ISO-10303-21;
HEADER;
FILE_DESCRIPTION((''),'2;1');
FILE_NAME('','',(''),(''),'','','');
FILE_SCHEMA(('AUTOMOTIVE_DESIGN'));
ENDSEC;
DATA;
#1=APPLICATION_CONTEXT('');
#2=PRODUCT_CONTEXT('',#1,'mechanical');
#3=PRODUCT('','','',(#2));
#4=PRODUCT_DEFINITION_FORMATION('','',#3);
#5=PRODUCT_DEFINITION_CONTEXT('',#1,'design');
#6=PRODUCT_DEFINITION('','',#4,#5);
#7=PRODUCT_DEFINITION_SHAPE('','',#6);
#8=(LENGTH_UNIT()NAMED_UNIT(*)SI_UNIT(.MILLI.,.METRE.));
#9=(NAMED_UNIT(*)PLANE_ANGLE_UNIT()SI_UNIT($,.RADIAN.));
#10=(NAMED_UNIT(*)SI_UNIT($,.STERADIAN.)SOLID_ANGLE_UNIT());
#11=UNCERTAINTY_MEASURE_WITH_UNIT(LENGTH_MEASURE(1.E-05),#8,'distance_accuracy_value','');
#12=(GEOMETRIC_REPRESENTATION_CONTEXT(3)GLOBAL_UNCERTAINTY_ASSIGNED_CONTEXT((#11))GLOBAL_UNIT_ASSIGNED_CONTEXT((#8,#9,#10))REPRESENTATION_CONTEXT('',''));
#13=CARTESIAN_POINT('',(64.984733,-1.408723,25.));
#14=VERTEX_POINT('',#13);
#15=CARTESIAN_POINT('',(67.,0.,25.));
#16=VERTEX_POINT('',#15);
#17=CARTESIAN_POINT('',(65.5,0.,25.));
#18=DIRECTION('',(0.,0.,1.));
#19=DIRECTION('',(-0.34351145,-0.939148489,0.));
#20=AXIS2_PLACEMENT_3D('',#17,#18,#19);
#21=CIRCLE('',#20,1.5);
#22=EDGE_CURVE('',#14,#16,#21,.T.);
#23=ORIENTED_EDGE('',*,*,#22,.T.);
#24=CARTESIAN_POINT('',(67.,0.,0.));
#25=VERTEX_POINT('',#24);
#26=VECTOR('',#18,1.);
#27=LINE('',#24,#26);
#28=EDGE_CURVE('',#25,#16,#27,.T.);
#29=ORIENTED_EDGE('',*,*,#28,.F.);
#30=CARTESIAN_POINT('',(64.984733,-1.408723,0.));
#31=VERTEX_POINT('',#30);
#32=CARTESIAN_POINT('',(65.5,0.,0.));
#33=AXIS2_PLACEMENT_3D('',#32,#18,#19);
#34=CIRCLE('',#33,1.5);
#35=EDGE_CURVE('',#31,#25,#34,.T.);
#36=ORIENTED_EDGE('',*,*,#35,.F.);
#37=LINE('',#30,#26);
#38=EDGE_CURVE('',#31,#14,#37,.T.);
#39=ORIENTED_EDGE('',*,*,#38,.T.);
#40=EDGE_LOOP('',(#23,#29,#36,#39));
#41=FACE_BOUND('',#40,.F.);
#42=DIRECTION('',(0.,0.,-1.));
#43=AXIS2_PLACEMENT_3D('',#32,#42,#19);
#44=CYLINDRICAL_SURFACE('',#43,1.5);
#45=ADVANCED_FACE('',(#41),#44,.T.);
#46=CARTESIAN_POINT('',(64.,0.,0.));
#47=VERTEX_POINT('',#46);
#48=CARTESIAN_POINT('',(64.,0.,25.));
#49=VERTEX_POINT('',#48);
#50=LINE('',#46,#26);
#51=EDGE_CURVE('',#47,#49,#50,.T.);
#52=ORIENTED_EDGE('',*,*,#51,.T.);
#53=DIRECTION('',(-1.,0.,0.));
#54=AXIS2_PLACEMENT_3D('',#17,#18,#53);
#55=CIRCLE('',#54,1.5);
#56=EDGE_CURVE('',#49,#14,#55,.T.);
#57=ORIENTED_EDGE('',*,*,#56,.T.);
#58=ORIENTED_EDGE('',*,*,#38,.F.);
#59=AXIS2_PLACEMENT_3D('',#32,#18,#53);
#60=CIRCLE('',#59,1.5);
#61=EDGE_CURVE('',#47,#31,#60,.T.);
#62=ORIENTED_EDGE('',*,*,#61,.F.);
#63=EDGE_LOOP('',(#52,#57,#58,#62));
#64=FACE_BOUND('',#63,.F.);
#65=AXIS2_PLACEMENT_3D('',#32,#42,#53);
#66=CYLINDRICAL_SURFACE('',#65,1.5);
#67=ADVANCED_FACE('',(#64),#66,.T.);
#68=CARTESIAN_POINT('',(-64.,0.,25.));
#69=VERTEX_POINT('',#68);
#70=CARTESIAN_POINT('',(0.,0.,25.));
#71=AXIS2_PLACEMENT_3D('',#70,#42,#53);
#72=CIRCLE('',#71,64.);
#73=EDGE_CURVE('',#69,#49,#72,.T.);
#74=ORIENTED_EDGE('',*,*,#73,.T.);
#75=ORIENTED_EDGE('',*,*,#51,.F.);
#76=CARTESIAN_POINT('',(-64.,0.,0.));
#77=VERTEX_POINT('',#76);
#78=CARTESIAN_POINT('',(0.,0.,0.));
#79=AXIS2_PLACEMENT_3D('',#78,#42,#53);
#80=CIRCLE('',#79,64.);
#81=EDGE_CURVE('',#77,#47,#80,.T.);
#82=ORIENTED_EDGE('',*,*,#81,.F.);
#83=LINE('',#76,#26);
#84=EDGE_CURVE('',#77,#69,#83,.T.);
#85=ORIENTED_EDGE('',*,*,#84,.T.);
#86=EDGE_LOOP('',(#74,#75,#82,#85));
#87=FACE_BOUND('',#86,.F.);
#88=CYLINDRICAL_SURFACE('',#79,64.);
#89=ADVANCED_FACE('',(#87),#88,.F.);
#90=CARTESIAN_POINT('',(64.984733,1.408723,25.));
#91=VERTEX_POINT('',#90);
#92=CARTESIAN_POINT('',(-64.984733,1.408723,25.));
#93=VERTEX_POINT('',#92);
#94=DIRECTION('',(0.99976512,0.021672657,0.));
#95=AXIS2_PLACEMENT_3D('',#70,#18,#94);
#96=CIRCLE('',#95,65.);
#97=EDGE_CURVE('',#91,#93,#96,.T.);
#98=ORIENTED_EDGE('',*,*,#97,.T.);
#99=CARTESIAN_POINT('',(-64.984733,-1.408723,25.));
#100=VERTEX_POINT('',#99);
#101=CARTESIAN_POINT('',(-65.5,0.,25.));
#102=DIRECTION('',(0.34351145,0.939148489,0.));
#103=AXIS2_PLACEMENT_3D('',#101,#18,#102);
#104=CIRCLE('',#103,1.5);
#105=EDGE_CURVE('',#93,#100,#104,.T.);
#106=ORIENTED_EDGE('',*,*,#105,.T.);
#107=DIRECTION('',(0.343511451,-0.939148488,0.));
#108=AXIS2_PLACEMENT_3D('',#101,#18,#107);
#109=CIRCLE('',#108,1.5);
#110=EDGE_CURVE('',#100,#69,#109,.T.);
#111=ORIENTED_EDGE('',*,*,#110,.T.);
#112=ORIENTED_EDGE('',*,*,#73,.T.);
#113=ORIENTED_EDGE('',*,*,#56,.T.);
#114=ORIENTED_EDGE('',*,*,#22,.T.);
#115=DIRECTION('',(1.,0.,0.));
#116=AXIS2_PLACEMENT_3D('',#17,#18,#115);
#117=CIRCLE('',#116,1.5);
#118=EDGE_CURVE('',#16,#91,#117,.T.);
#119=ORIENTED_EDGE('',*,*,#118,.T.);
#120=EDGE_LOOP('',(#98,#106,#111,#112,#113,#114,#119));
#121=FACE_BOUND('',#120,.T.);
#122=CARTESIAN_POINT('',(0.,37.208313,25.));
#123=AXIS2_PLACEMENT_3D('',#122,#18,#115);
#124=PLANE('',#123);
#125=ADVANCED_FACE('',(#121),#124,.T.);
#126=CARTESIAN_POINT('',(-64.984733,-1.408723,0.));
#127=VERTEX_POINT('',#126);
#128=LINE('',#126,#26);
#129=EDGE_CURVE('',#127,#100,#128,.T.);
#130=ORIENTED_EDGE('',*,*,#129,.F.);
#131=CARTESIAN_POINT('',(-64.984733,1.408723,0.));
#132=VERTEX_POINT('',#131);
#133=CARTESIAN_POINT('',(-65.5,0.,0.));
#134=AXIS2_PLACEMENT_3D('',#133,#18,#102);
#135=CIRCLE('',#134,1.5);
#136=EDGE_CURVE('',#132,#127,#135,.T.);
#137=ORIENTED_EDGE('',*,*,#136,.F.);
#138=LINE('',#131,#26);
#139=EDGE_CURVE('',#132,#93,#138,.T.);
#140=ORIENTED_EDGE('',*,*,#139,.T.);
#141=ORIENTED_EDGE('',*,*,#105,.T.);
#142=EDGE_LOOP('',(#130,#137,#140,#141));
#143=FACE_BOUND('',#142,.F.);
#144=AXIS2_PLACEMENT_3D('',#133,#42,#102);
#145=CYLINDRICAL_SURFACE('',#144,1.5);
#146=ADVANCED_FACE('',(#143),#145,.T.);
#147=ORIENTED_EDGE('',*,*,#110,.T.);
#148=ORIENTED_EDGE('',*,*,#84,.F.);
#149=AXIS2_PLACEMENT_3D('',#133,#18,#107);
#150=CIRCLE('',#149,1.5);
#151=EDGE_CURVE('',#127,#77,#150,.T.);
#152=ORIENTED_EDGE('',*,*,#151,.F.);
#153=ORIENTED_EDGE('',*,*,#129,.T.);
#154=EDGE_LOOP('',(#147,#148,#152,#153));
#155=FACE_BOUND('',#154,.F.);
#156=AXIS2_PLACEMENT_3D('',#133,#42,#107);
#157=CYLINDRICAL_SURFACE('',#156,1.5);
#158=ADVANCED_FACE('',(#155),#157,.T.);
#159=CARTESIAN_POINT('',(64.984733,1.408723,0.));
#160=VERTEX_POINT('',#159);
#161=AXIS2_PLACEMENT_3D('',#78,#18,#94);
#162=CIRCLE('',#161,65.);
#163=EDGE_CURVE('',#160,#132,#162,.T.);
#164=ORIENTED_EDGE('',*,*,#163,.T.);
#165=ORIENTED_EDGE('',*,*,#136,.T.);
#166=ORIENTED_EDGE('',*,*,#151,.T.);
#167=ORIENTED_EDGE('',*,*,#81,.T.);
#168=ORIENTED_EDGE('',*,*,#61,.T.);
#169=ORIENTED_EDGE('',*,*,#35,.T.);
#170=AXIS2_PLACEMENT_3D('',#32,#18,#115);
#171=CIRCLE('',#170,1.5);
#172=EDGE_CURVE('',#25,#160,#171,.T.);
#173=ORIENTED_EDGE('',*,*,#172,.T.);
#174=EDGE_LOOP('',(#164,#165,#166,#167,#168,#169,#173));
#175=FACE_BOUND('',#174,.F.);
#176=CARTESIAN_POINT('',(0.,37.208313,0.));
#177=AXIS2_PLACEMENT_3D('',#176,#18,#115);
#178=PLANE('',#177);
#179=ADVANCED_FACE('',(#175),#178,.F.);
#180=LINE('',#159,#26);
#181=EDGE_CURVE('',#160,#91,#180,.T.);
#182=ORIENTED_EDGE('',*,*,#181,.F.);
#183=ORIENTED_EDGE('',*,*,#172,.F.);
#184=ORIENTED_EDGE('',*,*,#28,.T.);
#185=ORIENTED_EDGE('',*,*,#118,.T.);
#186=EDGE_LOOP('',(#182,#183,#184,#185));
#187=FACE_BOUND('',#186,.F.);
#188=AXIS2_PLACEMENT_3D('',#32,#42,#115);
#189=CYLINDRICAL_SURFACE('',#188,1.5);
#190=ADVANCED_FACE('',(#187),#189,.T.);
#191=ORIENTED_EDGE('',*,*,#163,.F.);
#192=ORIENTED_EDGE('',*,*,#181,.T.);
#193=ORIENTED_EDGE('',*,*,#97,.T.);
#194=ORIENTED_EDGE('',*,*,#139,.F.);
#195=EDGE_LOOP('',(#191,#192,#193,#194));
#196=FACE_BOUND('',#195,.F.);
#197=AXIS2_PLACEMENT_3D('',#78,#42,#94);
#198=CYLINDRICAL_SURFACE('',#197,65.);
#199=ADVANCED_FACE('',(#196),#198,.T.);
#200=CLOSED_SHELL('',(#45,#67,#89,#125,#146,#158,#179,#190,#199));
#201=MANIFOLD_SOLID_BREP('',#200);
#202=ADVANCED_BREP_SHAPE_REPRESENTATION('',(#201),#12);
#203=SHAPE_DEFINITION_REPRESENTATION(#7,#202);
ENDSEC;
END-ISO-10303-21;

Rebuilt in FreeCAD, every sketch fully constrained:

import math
import FreeCAD as App
import Part
import Sketcher
from FreeCAD import Vector
Q = App.Units.Quantity

doc = App.newDocument("Part")
params = doc.addObject("Spreadsheet::Sheet", "Params")
for row, (alias, value) in enumerate([
    ("sketch1_radius", "65 mm"),
    ("sketch1_radius2", "64 mm"),
    ("sketch1_radius3", "1.5 mm"),
    ("pad1_length", "25 mm"),
], start=1):
    params.set(f"A{row}", alias)
    params.set(f"B{row}", "=" + value)
    params.setAlias(f"B{row}", alias)

body = doc.addObject("PartDesign::Body", "Body")

# Sketch on XY plane
sketch1 = body.newObject("Sketcher::SketchObject", "Sketch")
sketch1.AttachmentSupport = (doc.getObject("XY_Plane"), [""])
sketch1.MapMode = "FlatFace"
sketch1.addGeometry(Part.ArcOfCircle(Part.Circle(Vector(0, 0, 0), Vector(0, 0, 1), 65), math.radians(1), math.radians(179)), False)
sketch1.addGeometry(Part.ArcOfCircle(Part.Circle(Vector(-65.5, 0, 0), Vector(0, 0, 1), 1.5), math.radians(70), math.radians(290)), False)
sketch1.addGeometry(Part.ArcOfCircle(Part.Circle(Vector(-65.5, 0, 0), Vector(0, 0, 1), 1.5), math.radians(-70), math.radians(0)), False)
sketch1.addGeometry(Part.ArcOfCircle(Part.Circle(Vector(0, 0, 0), Vector(0, 0, 1), 64), math.radians(0), math.radians(180)), False)
sketch1.addGeometry(Part.ArcOfCircle(Part.Circle(Vector(65.5, 0, 0), Vector(0, 0, 1), 1.5), math.radians(180), math.radians(250)), False)
sketch1.addGeometry(Part.ArcOfCircle(Part.Circle(Vector(65.5, 0, 0), Vector(0, 0, 1), 1.5), math.radians(-110), math.radians(0)), False)
sketch1.addGeometry(Part.ArcOfCircle(Part.Circle(Vector(65.5, 0, 0), Vector(0, 0, 1), 1.5), math.radians(0), math.radians(110)), False)
sketch1.addConstraint(Sketcher.Constraint("Coincident", 0, 2, 1, 1))
sketch1.addConstraint(Sketcher.Constraint("Tangent", 1, 2, 2, 1))
sketch1.addConstraint(Sketcher.Constraint("Tangent", 2, 2, 3, 2))
sketch1.addConstraint(Sketcher.Constraint("Tangent", 3, 1, 4, 1))
sketch1.addConstraint(Sketcher.Constraint("Tangent", 4, 2, 5, 1))
sketch1.addConstraint(Sketcher.Constraint("Tangent", 5, 2, 6, 1))
sketch1.addConstraint(Sketcher.Constraint("Coincident", 6, 2, 0, 1))
sketch1.addConstraint(Sketcher.Constraint("Coincident", 0, 3, -1, 1))
sketch1.addConstraint(Sketcher.Constraint("Coincident", 3, 3, -1, 1))
sketch1.addConstraint(Sketcher.Constraint("Coincident", 6, 3, 4, 3))
sketch1.addConstraint(Sketcher.Constraint("Equal", 1, 2))
sketch1.addConstraint(Sketcher.Constraint("Equal", 2, 4))
sketch1.addConstraint(Sketcher.Constraint("Symmetric", 0, 2, 4, 2, -1, 1))
sketch1.addConstraint(Sketcher.Constraint("Symmetric", 1, 2, 4, 2, -2))
sketch1.addConstraint(Sketcher.Constraint("PointOnObject", 5, 2, -1))
sketch1.addConstraint(Sketcher.Constraint("Radius", 0, Q("65 mm")))
sketch1.addConstraint(Sketcher.Constraint("Radius", 3, Q("64 mm")))
sketch1.addConstraint(Sketcher.Constraint("Radius", 1, Q("1.5 mm")))
sketch1.setExpression("Constraints[15]", "Params.sketch1_radius")
sketch1.setExpression("Constraints[16]", "Params.sketch1_radius2")
sketch1.setExpression("Constraints[17]", "Params.sketch1_radius3")
pad1 = body.newObject("PartDesign::Pad", "Pad")
pad1.Profile = sketch1
pad1.setExpression("Length", "Params.pad1_length")

doc.recompute()
